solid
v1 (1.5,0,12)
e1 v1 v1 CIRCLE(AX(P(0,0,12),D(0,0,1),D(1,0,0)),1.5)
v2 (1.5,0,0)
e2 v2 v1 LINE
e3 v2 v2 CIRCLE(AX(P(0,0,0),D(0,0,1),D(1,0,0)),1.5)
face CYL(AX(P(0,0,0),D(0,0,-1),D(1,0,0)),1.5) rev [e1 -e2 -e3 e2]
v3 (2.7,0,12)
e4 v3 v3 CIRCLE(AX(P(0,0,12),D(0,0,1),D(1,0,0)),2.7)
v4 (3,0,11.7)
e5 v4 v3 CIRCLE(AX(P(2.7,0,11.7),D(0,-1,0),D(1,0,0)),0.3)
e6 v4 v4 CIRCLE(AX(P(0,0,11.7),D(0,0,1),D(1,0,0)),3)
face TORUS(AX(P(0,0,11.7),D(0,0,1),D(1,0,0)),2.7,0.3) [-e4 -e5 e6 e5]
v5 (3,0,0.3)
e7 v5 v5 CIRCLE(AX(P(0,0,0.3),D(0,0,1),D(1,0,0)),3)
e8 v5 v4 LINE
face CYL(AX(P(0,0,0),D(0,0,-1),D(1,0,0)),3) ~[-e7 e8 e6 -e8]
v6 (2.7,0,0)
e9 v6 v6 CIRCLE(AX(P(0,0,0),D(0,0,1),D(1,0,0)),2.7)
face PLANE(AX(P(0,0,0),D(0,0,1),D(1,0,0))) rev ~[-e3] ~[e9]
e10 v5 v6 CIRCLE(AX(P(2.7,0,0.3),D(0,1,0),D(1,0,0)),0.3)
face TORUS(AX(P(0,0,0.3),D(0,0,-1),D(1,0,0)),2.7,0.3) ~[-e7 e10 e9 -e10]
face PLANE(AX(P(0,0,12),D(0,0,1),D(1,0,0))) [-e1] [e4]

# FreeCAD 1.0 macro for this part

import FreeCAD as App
import Part
import Sketcher


def edges_at(feature, points):
    """Names of the edges that pass closest to the given points."""
    edges = feature.Shape.Edges
    near = lambda p: min(range(len(edges)), key=lambda i: edges[i].distToShape(Part.Vertex(*p))[0])
    return sorted({f"Edge{near(p) + 1}" for p in points})

doc = App.newDocument("Part")
body = doc.addObject("PartDesign::Body", "Body")

# Sketch on XY plane
sketch1 = body.newObject("Sketcher::SketchObject", "Sketch")
sketch1.AttachmentSupport = (doc.getObject("XY_Plane"), [""])
sketch1.MapMode = "FlatFace"
sketch1.addGeometry(Part.Circle(App.Vector(0, 0, 0), App.Vector(0, 0, 1), 3), False)
sketch1.addGeometry(Part.Circle(App.Vector(0, 0, 0), App.Vector(0, 0, 1), 1.5), False)
sketch1.addConstraint(Sketcher.Constraint("Coincident", 0, 3, -1, 1))
sketch1.addConstraint(Sketcher.Constraint("Coincident", 1, 3, -1, 1))
sketch1.addConstraint(Sketcher.Constraint("Diameter", 0, 6.0))
sketch1.addConstraint(Sketcher.Constraint("Diameter", 1, 3.0))
pad1 = body.newObject("PartDesign::Pad", "Pad")
pad1.Profile = sketch1
pad1.Length = 12
doc.recompute()

fillet = body.newObject("PartDesign::Fillet", "Fillet")
fillet.Base = (pad1, edges_at(pad1, [(-3, 0, 12), (-3, 0, 0)]))
fillet.Radius = 0.3

doc.recompute()
